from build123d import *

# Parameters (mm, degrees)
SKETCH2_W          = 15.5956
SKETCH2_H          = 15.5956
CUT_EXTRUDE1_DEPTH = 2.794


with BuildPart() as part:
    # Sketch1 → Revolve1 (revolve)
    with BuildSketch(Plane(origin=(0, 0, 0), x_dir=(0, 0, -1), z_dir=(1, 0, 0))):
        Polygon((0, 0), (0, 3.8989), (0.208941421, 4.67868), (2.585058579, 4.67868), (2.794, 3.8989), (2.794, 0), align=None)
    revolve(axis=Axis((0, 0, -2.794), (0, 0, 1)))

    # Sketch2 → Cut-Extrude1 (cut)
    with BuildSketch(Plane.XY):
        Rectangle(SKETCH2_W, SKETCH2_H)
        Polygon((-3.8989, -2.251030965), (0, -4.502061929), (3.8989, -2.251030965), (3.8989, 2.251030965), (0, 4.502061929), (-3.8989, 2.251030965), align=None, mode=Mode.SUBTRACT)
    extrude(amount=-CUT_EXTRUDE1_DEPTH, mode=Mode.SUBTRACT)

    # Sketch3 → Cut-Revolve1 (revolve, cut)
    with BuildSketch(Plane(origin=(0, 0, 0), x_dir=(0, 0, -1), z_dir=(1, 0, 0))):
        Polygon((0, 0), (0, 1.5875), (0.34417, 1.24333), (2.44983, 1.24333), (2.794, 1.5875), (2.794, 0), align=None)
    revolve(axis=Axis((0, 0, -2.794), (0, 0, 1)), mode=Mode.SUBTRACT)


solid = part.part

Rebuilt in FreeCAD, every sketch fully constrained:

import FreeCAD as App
import Part
import Sketcher

V = App.Vector
Q = App.Units.Quantity

doc = App.newDocument("Part")
params = doc.addObject("Spreadsheet::Sheet", "Params")
for row, (alias, value) in enumerate([
    ("sketch1_height", "0.11 in"),
    ("revolution_angle", "360 deg"),
    ("sketch2_width", "0.614 in"),
    ("pocket1_length", "0.11 in"),
    ("sketch3_height", "0.11 in"),
    ("sketch3_width", "0.0625 in"),
    ("groove_angle", "360 deg"),
], start=1):
    params.set(f"A{row}", alias)
    params.set(f"B{row}", "=" + value)
    params.setAlias(f"B{row}", alias)

body = doc.addObject("PartDesign::Body", "Body")

sketch1 = body.newObject("Sketcher::SketchObject", "Sketch")
sketch1.AttachmentSupport = (doc.getObject("YZ_Plane"), [""])
sketch1.MapMode = "FlatFace"
sketch1.addGeometry(Part.LineSegment(V(3.8989, 0, 0), V(0, 0, 0)), False)
sketch1.addGeometry(Part.LineSegment(V(0, 0, 0), V(0, -2.794, 0)), False)
sketch1.addGeometry(Part.LineSegment(V(0, -2.794, 0), V(3.8989, -2.794, 0)), False)
sketch1.addGeometry(Part.LineSegment(V(3.8989, -2.794, 0), V(4.67868, -2.585059, 0)), False)
sketch1.addGeometry(Part.LineSegment(V(4.67868, -2.585059, 0), V(4.67868, -0.208941, 0)), False)
sketch1.addGeometry(Part.LineSegment(V(4.67868, -0.208941, 0), V(3.8989, 0, 0)), False)
sketch1.addConstraint(Sketcher.Constraint("Coincident", 0, 2, 1, 1))
sketch1.addConstraint(Sketcher.Constraint("Coincident", 1, 2, 2, 1))
sketch1.addConstraint(Sketcher.Constraint("Coincident", 2, 2, 3, 1))
sketch1.addConstraint(Sketcher.Constraint("Coincident", 3, 2, 4, 1))
sketch1.addConstraint(Sketcher.Constraint("Coincident", 4, 2, 5, 1))
sketch1.addConstraint(Sketcher.Constraint("Coincident", 5, 2, 0, 1))
sketch1.addConstraint(Sketcher.Constraint("Horizontal", 0))
sketch1.addConstraint(Sketcher.Constraint("Vertical", 1))
sketch1.addConstraint(Sketcher.Constraint("Horizontal", 2))
sketch1.addConstraint(Sketcher.Constraint("Vertical", 4))
sketch1.addConstraint(Sketcher.Constraint("Coincident", 0, 2, -1, 1))
sketch1.addConstraint(Sketcher.Constraint("Vertical", 2, 2, 5, 2))
sketch1.addConstraint(Sketcher.Constraint("Equal", 3, 5))
sketch1.addConstraint(Sketcher.Constraint("Angle", 3, Q("15 deg")))
sketch1.addConstraint(Sketcher.Constraint("DistanceY", 1, 2, 1, 1, Q("0.11 in")))
sketch1.addConstraint(Sketcher.Constraint("DistanceX", 0, 2, 0, 1, Q("0.1535 in")))
sketch1.addConstraint(Sketcher.Constraint("DistanceX", -1, 1, 3, 2, Q("0.1842 in")))
sketch1.setExpression("Constraints[14]", "Params.sketch1_height")
revolution = body.newObject("PartDesign::Revolution", "Revolution")
revolution.Profile = sketch1
revolution.ReferenceAxis = (sketch1, ["V_Axis"])
revolution.setExpression("Angle", "Params.revolution_angle")

sketch2 = body.newObject("Sketcher::SketchObject", "Sketch001")
sketch2.AttachmentSupport = (doc.getObject("XY_Plane"), [""])
sketch2.MapMode = "FlatFace"
sketch2.addGeometry(Part.LineSegment(V(-7.7978, 7.7978, 0), V(-7.7978, -7.7978, 0)), False)
sketch2.addGeometry(Part.LineSegment(V(-7.7978, -7.7978, 0), V(7.7978, -7.7978, 0)), False)
sketch2.addGeometry(Part.LineSegment(V(7.7978, -7.7978, 0), V(7.7978, 7.7978, 0)), False)
sketch2.addGeometry(Part.LineSegment(V(7.7978, 7.7978, 0), V(-7.7978, 7.7978, 0)), False)
sketch2.addGeometry(Part.LineSegment(V(0, -4.502062, 0), V(-3.8989, -2.251031, 0)), False)
sketch2.addGeometry(Part.LineSegment(V(-3.8989, -2.251031, 0), V(-3.8989, 2.251031, 0)), False)
sketch2.addGeometry(Part.LineSegment(V(-3.8989, 2.251031, 0), V(0, 4.502062, 0)), False)
sketch2.addGeometry(Part.LineSegment(V(0, 4.502062, 0), V(3.8989, 2.251031, 0)), False)
sketch2.addGeometry(Part.LineSegment(V(3.8989, 2.251031, 0), V(3.8989, -2.251031, 0)), False)
sketch2.addGeometry(Part.LineSegment(V(3.8989, -2.251031, 0), V(0, -4.502062, 0)), False)
sketch2.addConstraint(Sketcher.Constraint("Coincident", 0, 2, 1, 1))
sketch2.addConstraint(Sketcher.Constraint("Coincident", 1, 2, 2, 1))
sketch2.addConstraint(Sketcher.Constraint("Coincident", 2, 2, 3, 1))
sketch2.addConstraint(Sketcher.Constraint("Coincident", 3, 2, 0, 1))
sketch2.addConstraint(Sketcher.Constraint("Coincident", 4, 2, 5, 1))
sketch2.addConstraint(Sketcher.Constraint("Coincident", 5, 2, 6, 1))
sketch2.addConstraint(Sketcher.Constraint("Coincident", 6, 2, 7, 1))
sketch2.addConstraint(Sketcher.Constraint("Coincident", 7, 2, 8, 1))
sketch2.addConstraint(Sketcher.Constraint("Coincident", 8, 2, 9, 1))
sketch2.addConstraint(Sketcher.Constraint("Coincident", 9, 2, 4, 1))
sketch2.addConstraint(Sketcher.Constraint("Vertical", 0))
sketch2.addConstraint(Sketcher.Constraint("Horizontal", 1))
sketch2.addConstraint(Sketcher.Constraint("Vertical", 2))
sketch2.addConstraint(Sketcher.Constraint("Horizontal", 3))
sketch2.addConstraint(Sketcher.Constraint("Vertical", 5))
sketch2.addConstraint(Sketcher.Constraint("Vertical", 8))
sketch2.addConstraint(Sketcher.Constraint("Symmetric", 0, 2, 2, 2, -1, 1))
sketch2.addConstraint(Sketcher.Constraint("Symmetric", 4, 2, 7, 2, -1, 1))
sketch2.addConstraint(Sketcher.Constraint("Symmetric", 6, 2, 9, 2, -1, 1))
sketch2.addConstraint(Sketcher.Constraint("PointOnObject", 6, 2, -2))
sketch2.addConstraint(Sketcher.Constraint("Parallel", 6, 9))
sketch2.addConstraint(Sketcher.Constraint("Horizontal", 5, 2, 7, 2))
sketch2.addConstraint(Sketcher.Constraint("Equal", 3, 0))
sketch2.addConstraint(Sketcher.Constraint("Angle", 4, Q("150 deg")))
sketch2.addConstraint(Sketcher.Constraint("DistanceX", 1, 1, 1, 2, Q("0.614 in")))
sketch2.addConstraint(Sketcher.Constraint("DistanceX", 5, 2, 7, 2, Q("0.307 in")))
sketch2.addConstraint(Sketcher.Constraint("DistanceY", 5, 1, 5, 2, 4.502062))
sketch2.setExpression("Constraints[24]", "Params.sketch2_width")
pocket1 = body.newObject("PartDesign::Pocket", "Pocket")
pocket1.Profile = sketch2
pocket1.setExpression("Length", "Params.pocket1_length")

sketch3 = body.newObject("Sketcher::SketchObject", "Sketch002")
sketch3.AttachmentSupport = (doc.getObject("YZ_Plane"), [""])
sketch3.MapMode = "FlatFace"
sketch3.addGeometry(Part.LineSegment(V(1.5875, 0, 0), V(0, 0, 0)), False)
sketch3.addGeometry(Part.LineSegment(V(0, 0, 0), V(0, -2.794, 0)), False)
sketch3.addGeometry(Part.LineSegment(V(0, -2.794, 0), V(1.5875, -2.794, 0)), False)
sketch3.addGeometry(Part.LineSegment(V(1.5875, -2.794, 0), V(1.24333, -2.44983, 0)), False)
sketch3.addGeometry(Part.LineSegment(V(1.24333, -2.44983, 0), V(1.24333, -0.34417, 0)), False)
sketch3.addGeometry(Part.LineSegment(V(1.24333, -0.34417, 0), V(1.5875, 0, 0)), False)
sketch3.addConstraint(Sketcher.Constraint("Coincident", 0, 2, 1, 1))
sketch3.addConstraint(Sketcher.Constraint("Coincident", 1, 2, 2, 1))
sketch3.addConstraint(Sketcher.Constraint("Coincident", 2, 2, 3, 1))
sketch3.addConstraint(Sketcher.Constraint("Coincident", 3, 2, 4, 1))
sketch3.addConstraint(Sketcher.Constraint("Coincident", 4, 2, 5, 1))
sketch3.addConstraint(Sketcher.Constraint("Coincident", 5, 2, 0, 1))
sketch3.addConstraint(Sketcher.Constraint("Horizontal", 0))
sketch3.addConstraint(Sketcher.Constraint("Vertical", 1))
sketch3.addConstraint(Sketcher.Constraint("Horizontal", 2))
sketch3.addConstraint(Sketcher.Constraint("Vertical", 4))
sketch3.addConstraint(Sketcher.Constraint("Coincident", 0, 2, -1, 1))
sketch3.addConstraint(Sketcher.Constraint("Perpendicular", 3, 5))
sketch3.addConstraint(Sketcher.Constraint("Vertical", 2, 2, 5, 2))
sketch3.addConstraint(Sketcher.Constraint("Equal", 3, 5))
sketch3.addConstraint(Sketcher.Constraint("DistanceY", 1, 2, 1, 1, Q("0.11 in")))
sketch3.addConstraint(Sketcher.Constraint("DistanceX", 0, 2, 0, 1, Q("0.0625 in")))
sketch3.addConstraint(Sketcher.Constraint("DistanceY", 4, 1, 4, 2, Q("0.0829 in")))
sketch3.setExpression("Constraints[14]", "Params.sketch3_height")
sketch3.setExpression("Constraints[15]", "Params.sketch3_width")
groove = body.newObject("PartDesign::Groove", "Groove")
groove.Profile = sketch3
groove.ReferenceAxis = (sketch3, ["V_Axis"])
groove.setExpression("Angle", "Params.groove_angle")

doc.recompute()
